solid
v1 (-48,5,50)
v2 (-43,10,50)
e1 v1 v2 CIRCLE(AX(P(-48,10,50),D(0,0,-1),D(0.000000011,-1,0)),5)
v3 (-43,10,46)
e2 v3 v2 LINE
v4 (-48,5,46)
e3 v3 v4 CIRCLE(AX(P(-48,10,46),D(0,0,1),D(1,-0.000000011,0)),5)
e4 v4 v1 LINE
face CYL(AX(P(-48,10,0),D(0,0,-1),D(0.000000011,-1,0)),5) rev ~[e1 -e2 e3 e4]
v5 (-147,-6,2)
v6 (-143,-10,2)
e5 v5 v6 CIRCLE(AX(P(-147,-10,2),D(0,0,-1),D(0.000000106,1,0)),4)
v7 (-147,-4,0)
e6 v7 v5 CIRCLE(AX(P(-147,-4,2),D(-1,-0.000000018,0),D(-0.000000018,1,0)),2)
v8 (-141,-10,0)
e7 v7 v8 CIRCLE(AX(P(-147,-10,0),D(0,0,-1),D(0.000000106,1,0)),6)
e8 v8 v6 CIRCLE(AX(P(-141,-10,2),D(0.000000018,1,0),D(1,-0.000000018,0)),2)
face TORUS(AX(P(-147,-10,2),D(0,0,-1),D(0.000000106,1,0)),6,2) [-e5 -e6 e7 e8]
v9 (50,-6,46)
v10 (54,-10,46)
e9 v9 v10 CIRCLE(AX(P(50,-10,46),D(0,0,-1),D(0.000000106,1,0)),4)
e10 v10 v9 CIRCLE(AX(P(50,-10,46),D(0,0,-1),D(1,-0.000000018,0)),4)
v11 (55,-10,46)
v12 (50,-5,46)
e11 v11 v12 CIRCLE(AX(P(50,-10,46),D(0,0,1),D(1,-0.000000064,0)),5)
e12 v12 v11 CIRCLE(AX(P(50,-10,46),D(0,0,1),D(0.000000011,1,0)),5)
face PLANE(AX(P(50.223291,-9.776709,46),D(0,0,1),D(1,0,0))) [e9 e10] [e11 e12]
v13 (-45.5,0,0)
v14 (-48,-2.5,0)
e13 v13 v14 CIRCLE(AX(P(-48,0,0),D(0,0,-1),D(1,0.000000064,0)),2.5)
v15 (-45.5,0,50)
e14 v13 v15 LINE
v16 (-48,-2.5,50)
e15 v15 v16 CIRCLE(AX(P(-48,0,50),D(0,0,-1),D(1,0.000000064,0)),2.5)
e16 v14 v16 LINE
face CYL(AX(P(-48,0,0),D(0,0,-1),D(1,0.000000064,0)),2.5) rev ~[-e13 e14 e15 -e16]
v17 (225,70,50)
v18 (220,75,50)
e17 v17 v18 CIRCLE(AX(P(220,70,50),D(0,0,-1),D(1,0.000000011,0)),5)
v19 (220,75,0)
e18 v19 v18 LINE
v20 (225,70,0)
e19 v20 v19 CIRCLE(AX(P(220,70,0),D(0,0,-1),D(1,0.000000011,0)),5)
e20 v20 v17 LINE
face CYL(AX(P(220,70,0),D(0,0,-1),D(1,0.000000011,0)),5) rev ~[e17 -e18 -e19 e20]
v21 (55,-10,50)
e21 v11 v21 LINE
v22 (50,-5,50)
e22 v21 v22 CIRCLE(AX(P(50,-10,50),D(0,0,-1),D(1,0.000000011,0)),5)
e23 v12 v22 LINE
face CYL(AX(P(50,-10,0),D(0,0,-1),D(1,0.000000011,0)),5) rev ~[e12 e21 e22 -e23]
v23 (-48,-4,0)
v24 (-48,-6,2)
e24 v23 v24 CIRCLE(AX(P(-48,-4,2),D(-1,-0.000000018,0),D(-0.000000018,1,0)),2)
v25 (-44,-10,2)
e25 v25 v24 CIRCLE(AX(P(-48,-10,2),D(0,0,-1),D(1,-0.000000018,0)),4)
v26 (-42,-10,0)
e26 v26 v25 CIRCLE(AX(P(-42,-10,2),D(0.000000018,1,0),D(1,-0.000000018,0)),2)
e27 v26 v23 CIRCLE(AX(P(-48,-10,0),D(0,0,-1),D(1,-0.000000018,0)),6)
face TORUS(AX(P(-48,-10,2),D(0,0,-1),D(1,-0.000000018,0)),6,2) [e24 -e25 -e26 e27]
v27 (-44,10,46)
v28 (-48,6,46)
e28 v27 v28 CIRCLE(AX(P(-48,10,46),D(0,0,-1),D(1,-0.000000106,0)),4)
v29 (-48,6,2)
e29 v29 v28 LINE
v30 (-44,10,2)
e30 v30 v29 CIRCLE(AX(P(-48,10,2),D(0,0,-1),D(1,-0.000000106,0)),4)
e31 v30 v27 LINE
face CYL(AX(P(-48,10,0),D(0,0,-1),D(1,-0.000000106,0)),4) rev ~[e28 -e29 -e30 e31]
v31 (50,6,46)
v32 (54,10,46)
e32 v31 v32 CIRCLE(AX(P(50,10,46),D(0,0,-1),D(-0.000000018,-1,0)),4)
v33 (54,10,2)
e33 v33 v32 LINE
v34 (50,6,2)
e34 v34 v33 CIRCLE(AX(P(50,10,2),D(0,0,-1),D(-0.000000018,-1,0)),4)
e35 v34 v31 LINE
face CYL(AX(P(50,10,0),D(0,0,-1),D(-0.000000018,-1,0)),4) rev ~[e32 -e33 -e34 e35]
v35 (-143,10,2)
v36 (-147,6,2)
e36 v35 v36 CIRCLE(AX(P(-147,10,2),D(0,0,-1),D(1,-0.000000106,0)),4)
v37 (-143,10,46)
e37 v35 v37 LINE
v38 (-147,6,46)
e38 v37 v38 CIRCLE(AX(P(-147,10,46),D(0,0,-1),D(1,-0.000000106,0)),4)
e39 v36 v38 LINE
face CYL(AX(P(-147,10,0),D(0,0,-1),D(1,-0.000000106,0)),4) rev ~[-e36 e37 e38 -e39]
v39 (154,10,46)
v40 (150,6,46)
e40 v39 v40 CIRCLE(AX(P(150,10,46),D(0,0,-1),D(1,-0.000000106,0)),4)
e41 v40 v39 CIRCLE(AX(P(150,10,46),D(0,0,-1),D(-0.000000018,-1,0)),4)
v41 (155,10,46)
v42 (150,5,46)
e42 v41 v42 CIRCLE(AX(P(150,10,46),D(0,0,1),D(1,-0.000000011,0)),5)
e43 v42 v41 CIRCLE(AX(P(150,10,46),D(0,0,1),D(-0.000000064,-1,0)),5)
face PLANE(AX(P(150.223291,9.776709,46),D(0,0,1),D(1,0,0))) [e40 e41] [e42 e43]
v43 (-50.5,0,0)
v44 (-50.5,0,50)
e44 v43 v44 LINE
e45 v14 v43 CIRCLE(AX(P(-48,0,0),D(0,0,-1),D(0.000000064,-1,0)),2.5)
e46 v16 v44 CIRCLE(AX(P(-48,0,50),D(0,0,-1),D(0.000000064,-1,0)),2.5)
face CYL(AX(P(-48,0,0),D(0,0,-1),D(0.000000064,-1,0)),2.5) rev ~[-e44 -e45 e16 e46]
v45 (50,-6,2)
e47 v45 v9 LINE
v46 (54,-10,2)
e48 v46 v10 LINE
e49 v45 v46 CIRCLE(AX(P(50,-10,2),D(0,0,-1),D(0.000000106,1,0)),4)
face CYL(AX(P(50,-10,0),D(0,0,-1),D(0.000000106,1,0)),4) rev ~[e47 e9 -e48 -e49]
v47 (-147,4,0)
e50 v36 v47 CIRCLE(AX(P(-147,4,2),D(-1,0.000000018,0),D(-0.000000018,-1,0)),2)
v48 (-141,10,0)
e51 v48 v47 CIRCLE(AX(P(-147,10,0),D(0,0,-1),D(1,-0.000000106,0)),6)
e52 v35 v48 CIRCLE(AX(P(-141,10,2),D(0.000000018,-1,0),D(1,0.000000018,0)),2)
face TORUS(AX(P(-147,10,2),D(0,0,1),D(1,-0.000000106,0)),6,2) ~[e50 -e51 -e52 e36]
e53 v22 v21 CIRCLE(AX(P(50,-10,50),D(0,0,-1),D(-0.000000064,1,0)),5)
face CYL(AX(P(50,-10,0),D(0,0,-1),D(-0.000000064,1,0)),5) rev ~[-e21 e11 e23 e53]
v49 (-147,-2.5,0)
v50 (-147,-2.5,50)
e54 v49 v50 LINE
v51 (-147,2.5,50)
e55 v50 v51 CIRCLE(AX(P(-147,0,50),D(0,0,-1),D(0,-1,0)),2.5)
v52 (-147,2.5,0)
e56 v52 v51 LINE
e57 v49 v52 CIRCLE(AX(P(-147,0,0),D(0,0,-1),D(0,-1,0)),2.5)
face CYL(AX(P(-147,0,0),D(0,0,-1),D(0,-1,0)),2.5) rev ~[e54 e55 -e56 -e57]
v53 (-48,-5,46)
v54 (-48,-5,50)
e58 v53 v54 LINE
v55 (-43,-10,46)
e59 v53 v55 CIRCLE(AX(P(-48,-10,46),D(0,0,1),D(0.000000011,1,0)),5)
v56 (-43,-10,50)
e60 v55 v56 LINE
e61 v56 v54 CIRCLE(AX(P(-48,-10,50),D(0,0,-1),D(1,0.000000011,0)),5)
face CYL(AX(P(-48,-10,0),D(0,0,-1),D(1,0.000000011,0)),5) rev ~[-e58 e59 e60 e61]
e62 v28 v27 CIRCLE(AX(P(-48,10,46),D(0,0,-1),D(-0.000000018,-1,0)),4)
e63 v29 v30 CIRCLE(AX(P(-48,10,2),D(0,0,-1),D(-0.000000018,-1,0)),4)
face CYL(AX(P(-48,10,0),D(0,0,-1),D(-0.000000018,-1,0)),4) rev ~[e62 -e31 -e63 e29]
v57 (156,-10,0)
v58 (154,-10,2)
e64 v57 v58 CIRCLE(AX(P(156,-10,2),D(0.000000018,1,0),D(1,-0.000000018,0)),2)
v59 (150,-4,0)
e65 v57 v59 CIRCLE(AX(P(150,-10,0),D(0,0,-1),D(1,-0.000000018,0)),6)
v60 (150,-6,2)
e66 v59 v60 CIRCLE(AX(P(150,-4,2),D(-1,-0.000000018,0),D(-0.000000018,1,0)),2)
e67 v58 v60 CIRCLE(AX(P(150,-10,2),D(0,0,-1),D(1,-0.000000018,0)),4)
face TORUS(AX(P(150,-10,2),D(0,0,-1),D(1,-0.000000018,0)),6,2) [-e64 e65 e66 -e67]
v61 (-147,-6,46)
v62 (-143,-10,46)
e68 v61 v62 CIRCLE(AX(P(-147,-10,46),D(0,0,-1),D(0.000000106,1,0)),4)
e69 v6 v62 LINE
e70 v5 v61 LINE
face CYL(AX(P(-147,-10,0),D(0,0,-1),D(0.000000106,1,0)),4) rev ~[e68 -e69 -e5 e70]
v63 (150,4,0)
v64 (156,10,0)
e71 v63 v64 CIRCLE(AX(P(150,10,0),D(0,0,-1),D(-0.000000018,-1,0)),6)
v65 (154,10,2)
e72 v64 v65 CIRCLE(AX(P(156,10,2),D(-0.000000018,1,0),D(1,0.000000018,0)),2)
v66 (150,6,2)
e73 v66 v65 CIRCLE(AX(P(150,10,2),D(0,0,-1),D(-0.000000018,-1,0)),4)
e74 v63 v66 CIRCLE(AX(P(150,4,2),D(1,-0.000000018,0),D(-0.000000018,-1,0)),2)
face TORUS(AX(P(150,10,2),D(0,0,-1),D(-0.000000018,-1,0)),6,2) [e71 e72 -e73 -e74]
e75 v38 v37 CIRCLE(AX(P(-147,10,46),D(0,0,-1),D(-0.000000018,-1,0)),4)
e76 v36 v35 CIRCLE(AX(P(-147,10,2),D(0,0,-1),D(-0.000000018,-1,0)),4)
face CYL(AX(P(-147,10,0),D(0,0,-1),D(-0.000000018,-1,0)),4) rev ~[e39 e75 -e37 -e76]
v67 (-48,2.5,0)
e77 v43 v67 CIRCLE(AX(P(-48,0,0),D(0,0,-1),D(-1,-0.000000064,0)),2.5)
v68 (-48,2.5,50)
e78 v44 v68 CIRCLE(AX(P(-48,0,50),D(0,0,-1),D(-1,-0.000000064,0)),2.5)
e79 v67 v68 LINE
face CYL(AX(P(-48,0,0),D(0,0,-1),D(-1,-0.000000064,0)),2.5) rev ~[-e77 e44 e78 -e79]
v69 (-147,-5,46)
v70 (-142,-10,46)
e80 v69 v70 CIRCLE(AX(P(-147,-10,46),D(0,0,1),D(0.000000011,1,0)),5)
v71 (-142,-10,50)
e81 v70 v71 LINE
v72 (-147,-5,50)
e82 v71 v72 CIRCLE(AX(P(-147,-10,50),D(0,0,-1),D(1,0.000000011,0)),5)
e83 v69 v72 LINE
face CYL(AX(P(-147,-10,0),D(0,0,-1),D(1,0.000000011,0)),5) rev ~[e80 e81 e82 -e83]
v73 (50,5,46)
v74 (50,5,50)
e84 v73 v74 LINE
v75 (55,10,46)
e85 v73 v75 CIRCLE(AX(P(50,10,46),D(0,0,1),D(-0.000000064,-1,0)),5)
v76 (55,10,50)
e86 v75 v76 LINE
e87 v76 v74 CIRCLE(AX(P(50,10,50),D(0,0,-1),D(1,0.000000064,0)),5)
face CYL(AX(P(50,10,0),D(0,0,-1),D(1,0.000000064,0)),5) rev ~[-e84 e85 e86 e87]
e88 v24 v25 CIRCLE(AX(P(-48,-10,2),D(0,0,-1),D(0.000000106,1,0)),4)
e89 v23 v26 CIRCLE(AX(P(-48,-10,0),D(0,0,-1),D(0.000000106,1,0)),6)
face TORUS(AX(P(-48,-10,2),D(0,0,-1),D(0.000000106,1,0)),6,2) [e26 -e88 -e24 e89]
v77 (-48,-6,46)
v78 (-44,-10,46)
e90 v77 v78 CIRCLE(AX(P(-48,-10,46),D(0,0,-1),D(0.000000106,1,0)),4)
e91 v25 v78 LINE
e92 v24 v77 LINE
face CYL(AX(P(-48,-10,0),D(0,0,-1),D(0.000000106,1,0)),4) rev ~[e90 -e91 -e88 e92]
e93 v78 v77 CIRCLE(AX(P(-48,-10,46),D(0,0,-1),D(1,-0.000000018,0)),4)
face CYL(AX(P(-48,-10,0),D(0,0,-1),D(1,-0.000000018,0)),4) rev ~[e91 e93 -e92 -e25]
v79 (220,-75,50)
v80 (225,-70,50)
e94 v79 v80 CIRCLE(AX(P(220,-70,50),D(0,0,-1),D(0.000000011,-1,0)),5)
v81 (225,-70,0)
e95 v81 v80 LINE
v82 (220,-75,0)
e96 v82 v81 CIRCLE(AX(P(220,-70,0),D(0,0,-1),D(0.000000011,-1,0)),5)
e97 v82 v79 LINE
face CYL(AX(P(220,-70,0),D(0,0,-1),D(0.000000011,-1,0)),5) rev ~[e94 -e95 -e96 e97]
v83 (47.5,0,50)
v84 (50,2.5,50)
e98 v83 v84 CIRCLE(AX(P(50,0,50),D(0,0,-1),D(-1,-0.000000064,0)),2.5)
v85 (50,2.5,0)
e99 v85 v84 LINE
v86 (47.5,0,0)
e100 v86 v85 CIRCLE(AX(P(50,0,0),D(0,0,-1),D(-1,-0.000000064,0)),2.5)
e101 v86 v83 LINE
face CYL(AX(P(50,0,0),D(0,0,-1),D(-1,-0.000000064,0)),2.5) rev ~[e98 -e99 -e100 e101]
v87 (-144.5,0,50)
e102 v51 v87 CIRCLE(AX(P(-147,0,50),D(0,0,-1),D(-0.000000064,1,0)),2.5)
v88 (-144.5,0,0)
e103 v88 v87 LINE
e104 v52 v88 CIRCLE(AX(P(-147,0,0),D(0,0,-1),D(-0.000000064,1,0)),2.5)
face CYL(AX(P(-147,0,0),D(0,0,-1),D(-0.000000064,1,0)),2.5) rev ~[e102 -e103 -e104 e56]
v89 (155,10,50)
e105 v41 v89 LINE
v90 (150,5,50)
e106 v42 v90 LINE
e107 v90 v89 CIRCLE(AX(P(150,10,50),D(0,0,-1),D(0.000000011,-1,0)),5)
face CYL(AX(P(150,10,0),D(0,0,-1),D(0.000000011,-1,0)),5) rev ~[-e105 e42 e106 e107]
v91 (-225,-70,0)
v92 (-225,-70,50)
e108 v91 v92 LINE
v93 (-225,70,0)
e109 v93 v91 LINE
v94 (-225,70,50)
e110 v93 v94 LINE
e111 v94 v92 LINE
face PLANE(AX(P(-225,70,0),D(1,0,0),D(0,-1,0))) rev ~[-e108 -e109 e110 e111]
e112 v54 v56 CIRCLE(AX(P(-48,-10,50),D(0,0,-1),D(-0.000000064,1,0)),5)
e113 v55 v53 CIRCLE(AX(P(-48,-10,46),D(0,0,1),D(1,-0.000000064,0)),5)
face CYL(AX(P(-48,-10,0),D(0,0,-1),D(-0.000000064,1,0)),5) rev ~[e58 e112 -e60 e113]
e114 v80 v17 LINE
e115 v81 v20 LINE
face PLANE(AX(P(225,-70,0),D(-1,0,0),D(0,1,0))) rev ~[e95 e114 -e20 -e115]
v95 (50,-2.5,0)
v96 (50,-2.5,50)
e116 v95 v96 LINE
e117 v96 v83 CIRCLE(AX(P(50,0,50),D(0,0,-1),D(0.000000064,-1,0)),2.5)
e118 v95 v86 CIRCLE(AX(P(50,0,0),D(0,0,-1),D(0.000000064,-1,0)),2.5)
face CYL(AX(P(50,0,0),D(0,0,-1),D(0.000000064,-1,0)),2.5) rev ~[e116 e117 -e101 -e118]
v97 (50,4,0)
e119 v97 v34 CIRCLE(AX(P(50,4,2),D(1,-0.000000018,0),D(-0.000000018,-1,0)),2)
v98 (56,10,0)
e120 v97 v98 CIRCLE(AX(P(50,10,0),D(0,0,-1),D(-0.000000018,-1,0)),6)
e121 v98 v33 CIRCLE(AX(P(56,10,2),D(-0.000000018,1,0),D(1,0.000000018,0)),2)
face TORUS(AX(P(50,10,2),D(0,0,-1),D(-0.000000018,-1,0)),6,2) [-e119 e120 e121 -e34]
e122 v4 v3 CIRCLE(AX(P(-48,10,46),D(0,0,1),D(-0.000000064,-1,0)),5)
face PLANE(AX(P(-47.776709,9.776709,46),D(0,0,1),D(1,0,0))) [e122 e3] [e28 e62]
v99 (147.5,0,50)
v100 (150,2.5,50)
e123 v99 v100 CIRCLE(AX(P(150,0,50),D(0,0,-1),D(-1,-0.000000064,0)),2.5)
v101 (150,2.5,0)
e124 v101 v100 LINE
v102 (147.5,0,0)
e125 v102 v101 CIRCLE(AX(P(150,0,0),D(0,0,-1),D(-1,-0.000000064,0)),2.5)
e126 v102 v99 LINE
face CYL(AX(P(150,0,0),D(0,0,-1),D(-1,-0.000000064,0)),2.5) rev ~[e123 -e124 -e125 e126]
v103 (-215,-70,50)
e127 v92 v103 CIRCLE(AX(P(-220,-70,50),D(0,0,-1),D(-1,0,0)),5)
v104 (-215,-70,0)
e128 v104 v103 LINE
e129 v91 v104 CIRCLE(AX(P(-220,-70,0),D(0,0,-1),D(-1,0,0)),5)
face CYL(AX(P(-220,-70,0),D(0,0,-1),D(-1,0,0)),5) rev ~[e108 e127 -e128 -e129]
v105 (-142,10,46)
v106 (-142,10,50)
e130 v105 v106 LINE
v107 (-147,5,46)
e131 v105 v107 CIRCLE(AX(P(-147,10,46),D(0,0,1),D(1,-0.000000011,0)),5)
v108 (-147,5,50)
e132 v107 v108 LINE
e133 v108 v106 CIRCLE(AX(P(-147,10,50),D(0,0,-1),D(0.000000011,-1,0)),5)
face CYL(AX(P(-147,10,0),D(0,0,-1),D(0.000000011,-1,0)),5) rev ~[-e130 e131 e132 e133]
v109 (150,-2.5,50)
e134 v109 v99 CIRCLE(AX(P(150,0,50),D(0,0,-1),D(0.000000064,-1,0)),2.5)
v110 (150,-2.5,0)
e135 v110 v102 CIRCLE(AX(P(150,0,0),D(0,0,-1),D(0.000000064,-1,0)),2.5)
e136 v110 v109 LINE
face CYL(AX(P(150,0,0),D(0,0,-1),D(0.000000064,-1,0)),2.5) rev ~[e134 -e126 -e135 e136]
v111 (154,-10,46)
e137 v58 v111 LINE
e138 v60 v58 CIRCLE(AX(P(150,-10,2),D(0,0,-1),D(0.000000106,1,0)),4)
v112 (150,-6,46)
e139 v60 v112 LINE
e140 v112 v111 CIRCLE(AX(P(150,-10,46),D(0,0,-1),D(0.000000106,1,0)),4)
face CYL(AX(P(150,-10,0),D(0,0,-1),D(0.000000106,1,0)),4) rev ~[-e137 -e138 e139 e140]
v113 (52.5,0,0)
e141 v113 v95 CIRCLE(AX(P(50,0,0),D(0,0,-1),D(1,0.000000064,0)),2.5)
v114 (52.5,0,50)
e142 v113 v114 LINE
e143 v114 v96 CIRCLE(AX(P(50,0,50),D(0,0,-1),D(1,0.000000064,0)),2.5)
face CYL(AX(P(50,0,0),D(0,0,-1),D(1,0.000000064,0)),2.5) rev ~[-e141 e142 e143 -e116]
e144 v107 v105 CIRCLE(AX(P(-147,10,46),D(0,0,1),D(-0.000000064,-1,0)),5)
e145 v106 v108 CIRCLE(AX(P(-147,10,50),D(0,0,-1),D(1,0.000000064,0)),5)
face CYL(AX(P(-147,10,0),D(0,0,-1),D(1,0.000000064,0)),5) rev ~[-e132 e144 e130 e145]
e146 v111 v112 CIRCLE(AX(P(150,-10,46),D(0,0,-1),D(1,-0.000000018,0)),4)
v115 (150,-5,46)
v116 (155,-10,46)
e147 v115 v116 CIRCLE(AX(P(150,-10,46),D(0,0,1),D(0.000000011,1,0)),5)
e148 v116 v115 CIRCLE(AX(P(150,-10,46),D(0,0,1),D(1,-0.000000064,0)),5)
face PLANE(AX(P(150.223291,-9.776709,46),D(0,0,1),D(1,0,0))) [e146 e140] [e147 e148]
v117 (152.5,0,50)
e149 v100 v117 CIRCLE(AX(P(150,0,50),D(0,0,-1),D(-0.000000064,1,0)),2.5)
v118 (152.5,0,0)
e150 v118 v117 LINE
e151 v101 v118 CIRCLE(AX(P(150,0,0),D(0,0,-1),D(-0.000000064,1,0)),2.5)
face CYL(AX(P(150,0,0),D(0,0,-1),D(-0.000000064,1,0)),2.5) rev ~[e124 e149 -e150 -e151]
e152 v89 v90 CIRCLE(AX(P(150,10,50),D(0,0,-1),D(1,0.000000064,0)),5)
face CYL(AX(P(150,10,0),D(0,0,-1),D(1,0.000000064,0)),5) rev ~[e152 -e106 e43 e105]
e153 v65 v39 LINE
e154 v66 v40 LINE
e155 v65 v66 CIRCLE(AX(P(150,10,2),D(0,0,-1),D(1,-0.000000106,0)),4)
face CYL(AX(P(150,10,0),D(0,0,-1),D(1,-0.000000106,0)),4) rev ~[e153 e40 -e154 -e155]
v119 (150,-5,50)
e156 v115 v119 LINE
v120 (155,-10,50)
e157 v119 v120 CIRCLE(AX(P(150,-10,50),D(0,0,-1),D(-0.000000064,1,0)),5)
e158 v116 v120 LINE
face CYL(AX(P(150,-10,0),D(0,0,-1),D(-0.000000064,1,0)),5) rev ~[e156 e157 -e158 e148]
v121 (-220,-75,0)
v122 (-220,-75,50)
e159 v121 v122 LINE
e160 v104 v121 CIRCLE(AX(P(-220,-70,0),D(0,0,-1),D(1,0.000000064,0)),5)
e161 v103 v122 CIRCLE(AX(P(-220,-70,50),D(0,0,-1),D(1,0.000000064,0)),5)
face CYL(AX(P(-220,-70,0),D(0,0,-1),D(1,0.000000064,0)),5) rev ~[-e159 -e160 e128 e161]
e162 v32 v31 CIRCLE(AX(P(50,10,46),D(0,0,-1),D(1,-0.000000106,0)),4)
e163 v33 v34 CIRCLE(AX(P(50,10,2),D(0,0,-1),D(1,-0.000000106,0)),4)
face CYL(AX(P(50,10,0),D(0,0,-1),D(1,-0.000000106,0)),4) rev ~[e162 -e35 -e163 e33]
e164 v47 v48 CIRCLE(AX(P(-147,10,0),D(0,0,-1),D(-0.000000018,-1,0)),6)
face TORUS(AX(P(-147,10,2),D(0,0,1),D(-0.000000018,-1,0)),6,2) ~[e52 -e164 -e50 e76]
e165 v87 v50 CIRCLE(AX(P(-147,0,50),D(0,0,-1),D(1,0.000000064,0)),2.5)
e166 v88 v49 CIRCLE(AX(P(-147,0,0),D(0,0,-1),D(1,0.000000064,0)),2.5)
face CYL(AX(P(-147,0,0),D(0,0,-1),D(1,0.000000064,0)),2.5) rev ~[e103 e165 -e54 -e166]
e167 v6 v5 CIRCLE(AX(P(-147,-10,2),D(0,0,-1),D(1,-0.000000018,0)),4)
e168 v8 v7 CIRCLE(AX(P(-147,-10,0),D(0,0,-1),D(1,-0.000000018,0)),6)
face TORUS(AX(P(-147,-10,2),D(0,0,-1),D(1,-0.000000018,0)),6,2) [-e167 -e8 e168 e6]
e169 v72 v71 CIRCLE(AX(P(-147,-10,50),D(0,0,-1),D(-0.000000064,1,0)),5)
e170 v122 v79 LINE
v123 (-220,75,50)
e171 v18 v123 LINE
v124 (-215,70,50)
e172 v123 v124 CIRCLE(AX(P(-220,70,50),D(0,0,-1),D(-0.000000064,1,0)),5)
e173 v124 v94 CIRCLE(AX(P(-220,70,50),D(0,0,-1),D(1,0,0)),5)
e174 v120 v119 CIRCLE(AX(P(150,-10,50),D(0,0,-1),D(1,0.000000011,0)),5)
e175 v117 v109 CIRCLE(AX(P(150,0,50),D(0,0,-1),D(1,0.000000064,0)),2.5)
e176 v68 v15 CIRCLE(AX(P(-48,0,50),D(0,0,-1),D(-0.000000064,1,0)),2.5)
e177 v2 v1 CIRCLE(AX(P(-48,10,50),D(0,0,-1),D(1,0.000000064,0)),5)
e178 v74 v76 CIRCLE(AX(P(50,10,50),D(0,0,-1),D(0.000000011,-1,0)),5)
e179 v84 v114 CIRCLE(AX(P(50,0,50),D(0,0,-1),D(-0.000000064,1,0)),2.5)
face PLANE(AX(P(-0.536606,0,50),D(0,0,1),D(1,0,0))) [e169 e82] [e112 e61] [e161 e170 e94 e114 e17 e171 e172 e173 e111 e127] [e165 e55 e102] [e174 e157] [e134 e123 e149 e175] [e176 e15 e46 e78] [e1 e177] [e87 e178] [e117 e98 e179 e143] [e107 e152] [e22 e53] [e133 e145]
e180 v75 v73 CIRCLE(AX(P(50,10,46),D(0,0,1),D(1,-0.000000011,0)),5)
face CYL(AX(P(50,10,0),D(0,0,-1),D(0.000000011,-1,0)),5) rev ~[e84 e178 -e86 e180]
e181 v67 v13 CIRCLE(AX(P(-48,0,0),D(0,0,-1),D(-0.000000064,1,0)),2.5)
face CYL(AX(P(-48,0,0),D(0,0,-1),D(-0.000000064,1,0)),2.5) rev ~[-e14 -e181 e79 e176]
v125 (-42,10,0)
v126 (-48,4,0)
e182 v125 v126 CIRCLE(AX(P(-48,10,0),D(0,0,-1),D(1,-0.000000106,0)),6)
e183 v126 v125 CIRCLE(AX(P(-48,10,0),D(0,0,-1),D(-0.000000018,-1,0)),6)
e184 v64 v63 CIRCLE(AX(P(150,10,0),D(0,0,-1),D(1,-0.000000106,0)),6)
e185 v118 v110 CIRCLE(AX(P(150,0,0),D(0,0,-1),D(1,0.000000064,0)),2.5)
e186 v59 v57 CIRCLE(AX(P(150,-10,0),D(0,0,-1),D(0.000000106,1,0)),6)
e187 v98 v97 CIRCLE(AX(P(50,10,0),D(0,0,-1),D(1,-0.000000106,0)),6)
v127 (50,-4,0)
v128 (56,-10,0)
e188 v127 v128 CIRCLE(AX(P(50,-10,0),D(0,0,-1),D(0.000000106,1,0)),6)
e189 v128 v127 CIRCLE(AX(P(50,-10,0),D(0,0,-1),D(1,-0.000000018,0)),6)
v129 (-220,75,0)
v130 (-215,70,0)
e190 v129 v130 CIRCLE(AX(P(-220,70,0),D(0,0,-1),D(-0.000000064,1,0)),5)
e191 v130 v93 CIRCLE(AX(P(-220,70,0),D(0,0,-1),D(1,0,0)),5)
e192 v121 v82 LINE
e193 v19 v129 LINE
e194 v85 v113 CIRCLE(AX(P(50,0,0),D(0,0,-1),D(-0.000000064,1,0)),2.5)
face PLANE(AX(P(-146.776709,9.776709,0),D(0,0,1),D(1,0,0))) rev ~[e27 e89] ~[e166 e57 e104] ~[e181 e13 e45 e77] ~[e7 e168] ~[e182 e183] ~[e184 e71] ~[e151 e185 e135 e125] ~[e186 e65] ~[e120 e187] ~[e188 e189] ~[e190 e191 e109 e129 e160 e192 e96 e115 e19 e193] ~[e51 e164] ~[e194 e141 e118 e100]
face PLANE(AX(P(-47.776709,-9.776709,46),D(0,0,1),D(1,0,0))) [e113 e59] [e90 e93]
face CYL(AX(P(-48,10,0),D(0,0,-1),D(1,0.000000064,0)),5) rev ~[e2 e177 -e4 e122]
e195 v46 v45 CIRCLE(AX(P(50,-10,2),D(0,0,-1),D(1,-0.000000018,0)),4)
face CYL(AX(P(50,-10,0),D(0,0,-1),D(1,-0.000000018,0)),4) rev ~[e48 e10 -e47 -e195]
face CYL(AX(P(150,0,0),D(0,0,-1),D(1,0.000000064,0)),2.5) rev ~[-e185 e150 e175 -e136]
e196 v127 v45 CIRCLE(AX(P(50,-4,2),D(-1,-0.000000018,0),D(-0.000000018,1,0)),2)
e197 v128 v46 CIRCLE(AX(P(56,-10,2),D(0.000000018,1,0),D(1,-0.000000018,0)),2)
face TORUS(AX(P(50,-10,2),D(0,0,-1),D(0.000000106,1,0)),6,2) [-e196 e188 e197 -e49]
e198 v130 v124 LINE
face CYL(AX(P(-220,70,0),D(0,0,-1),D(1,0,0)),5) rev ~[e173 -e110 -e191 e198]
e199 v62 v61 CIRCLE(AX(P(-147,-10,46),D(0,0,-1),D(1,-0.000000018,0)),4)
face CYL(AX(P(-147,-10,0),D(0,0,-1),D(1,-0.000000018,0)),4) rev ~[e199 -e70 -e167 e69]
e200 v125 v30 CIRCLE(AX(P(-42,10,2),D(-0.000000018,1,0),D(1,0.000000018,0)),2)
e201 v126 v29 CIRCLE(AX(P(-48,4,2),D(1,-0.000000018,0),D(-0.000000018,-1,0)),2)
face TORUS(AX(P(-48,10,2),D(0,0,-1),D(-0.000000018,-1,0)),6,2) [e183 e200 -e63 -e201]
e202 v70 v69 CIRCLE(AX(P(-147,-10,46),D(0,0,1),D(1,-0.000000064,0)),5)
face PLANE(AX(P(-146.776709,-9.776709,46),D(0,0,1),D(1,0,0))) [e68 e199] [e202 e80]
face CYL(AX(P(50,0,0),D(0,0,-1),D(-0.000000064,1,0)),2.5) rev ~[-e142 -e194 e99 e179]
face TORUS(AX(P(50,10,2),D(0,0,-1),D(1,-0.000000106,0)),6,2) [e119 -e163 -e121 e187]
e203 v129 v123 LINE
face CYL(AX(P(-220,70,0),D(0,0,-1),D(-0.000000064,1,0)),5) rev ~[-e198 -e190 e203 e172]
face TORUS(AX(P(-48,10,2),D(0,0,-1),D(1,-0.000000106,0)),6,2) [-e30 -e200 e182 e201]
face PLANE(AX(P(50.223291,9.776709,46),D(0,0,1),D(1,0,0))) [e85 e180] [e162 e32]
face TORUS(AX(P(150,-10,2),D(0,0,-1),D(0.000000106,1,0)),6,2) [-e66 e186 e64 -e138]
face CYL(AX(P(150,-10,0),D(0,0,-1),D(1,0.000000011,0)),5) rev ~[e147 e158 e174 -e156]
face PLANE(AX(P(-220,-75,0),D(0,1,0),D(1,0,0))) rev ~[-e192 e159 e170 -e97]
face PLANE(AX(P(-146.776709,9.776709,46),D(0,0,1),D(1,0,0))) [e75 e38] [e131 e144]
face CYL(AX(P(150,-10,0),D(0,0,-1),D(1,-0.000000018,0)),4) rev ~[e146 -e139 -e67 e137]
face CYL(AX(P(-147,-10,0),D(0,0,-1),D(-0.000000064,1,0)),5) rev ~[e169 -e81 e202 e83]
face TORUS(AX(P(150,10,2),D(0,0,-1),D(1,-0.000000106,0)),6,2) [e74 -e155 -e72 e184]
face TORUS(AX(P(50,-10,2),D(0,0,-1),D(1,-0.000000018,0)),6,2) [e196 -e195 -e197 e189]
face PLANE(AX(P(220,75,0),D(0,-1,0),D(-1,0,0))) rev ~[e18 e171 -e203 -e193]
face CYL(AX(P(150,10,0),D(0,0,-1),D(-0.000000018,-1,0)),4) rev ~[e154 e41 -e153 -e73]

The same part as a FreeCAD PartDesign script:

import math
import FreeCAD as App
import Part
import Sketcher

V = App.Vector


def edges_at(feature, points):
    """Names of the edges that pass closest to the given points."""
    edges = feature.Shape.Edges
    near = lambda p: min(range(len(edges)), key=lambda i: edges[i].distToShape(Part.Vertex(*p))[0])
    return sorted({f"Edge{near(p) + 1}" for p in points})

doc = App.newDocument("Part")
body = doc.addObject("PartDesign::Body", "Body")

sketch1 = body.newObject("Sketcher::SketchObject", "Sketch")
sketch1.AttachmentSupport = (doc.getObject("XY_Plane"), [""])
sketch1.MapMode = "FlatFace"
sketch1.addGeometry([
    Part.LineSegment(V(220, 75, 0), V(-220, 75, 0)),
    Part.ArcOfCircle(Part.Circle(V(-220, 70, 0), V(0, 0, 1), 5), math.radians(0), math.radians(90)),
    Part.ArcOfCircle(Part.Circle(V(-220, 70, 0), V(0, 0, 1), 5), math.radians(180), math.radians(360)),
    Part.LineSegment(V(-225, 70, 0), V(-225, -70, 0)),
    Part.ArcOfCircle(Part.Circle(V(-220, -70, 0), V(0, 0, 1), 5), math.radians(0), math.radians(180)),
    Part.ArcOfCircle(Part.Circle(V(-220, -70, 0), V(0, 0, 1), 5), math.radians(-90), math.radians(0)),
    Part.LineSegment(V(-220, -75, 0), V(220, -75, 0)),
    Part.ArcOfCircle(Part.Circle(V(220, -70, 0), V(0, 0, 1), 5), math.radians(0), math.radians(270)),
    Part.LineSegment(V(225, -70, 0), V(225, 70, 0)),
    Part.ArcOfCircle(Part.Circle(V(220, 70, 0), V(0, 0, 1), 5), math.radians(90), math.radians(360)),
    Part.ArcOfCircle(Part.Circle(V(-147, -10, 0), V(0, 0, 1), 5), math.radians(0), math.radians(90)),
    Part.ArcOfCircle(Part.Circle(V(-147, -10, 0), V(0, 0, 1), 5), math.radians(90), math.radians(360)),
    Part.ArcOfCircle(Part.Circle(V(-48, -10, 0), V(0, 0, 1), 5), math.radians(0), math.radians(90)),
    Part.ArcOfCircle(Part.Circle(V(-48, -10, 0), V(0, 0, 1), 5), math.radians(90), math.radians(360)),
    Part.ArcOfCircle(Part.Circle(V(-147, 0, 0), V(0, 0, 1), 2.5), math.radians(90), math.radians(270)),
    Part.ArcOfCircle(Part.Circle(V(-147, 0, 0), V(0, 0, 1), 2.5), math.radians(0), math.radians(90)),
    Part.ArcOfCircle(Part.Circle(V(-147, 0, 0), V(0, 0, 1), 2.5), math.radians(-90), math.radians(0)),
    Part.ArcOfCircle(Part.Circle(V(-48, 0, 0), V(0, 0, 1), 2.5), math.radians(0), math.radians(90)),
    Part.ArcOfCircle(Part.Circle(V(-48, 0, 0), V(0, 0, 1), 2.5), math.radians(-90), math.radians(0)),
    Part.ArcOfCircle(Part.Circle(V(-48, 0, 0), V(0, 0, 1), 2.5), math.radians(180), math.radians(270)),
    Part.ArcOfCircle(Part.Circle(V(-48, 0, 0), V(0, 0, 1), 2.5), math.radians(90), math.radians(180)),
    Part.ArcOfCircle(Part.Circle(V(50, -10, 0), V(0, 0, 1), 5), math.radians(0), math.radians(90)),
    Part.ArcOfCircle(Part.Circle(V(50, -10, 0), V(0, 0, 1), 5), math.radians(90), math.radians(360)),
    Part.ArcOfCircle(Part.Circle(V(150, -10, 0), V(0, 0, 1), 5), math.radians(0), math.radians(90)),
    Part.ArcOfCircle(Part.Circle(V(150, -10, 0), V(0, 0, 1), 5), math.radians(90), math.radians(360)),
    Part.ArcOfCircle(Part.Circle(V(50, 0, 0), V(0, 0, 1), 2.5), math.radians(0), math.radians(90)),
    Part.ArcOfCircle(Part.Circle(V(50, 0, 0), V(0, 0, 1), 2.5), math.radians(-90), math.radians(0)),
    Part.ArcOfCircle(Part.Circle(V(50, 0, 0), V(0, 0, 1), 2.5), math.radians(180), math.radians(270)),
    Part.ArcOfCircle(Part.Circle(V(50, 0, 0), V(0, 0, 1), 2.5), math.radians(90), math.radians(180)),
    Part.ArcOfCircle(Part.Circle(V(150, 0, 0), V(0, 0, 1), 2.5), math.radians(-90), math.radians(0)),
    Part.ArcOfCircle(Part.Circle(V(150, 0, 0), V(0, 0, 1), 2.5), math.radians(180), math.radians(270)),
    Part.ArcOfCircle(Part.Circle(V(150, 0, 0), V(0, 0, 1), 2.5), math.radians(90), math.radians(180)),
    Part.ArcOfCircle(Part.Circle(V(150, 0, 0), V(0, 0, 1), 2.5), math.radians(0), math.radians(90)),
    Part.ArcOfCircle(Part.Circle(V(-147, 10, 0), V(0, 0, 1), 5), math.radians(0), math.radians(270)),
    Part.ArcOfCircle(Part.Circle(V(-147, 10, 0), V(0, 0, 1), 5), math.radians(-90), math.radians(0)),
    Part.ArcOfCircle(Part.Circle(V(-48, 10, 0), V(0, 0, 1), 5), math.radians(0), math.radians(270)),
    Part.ArcOfCircle(Part.Circle(V(-48, 10, 0), V(0, 0, 1), 5), math.radians(-90), math.radians(0)),
    Part.ArcOfCircle(Part.Circle(V(50, 10, 0), V(0, 0, 1), 5), math.radians(0), math.radians(270)),
    Part.ArcOfCircle(Part.Circle(V(50, 10, 0), V(0, 0, 1), 5), math.radians(-90), math.radians(0)),
    Part.ArcOfCircle(Part.Circle(V(150, 10, 0), V(0, 0, 1), 5), math.radians(0), math.radians(270)),
    Part.ArcOfCircle(Part.Circle(V(150, 10, 0), V(0, 0, 1), 5), math.radians(-90), math.radians(0)),
], False)
sketch1.addConstraint([
    Sketcher.Constraint("Tangent", 0, 2, 1, 2),
    Sketcher.Constraint("Tangent", 1, 1, 2, 2),
    Sketcher.Constraint("Tangent", 2, 1, 3, 1),
    Sketcher.Constraint("Tangent", 3, 2, 4, 2),
    Sketcher.Constraint("Tangent", 4, 1, 5, 2),
    Sketcher.Constraint("Tangent", 5, 1, 6, 1),
    Sketcher.Constraint("Tangent", 6, 2, 7, 2),
    Sketcher.Constraint("Tangent", 7, 1, 8, 1),
    Sketcher.Constraint("Tangent", 8, 2, 9, 2),
    Sketcher.Constraint("Tangent", 9, 1, 0, 1),
    Sketcher.Constraint("Tangent", 10, 1, 11, 2),
    Sketcher.Constraint("Coincident", 11, 1, 10, 2),
    Sketcher.Constraint("Tangent", 12, 1, 13, 2),
    Sketcher.Constraint("Coincident", 13, 1, 12, 2),
    Sketcher.Constraint("Tangent", 14, 1, 15, 2),
    Sketcher.Constraint("Tangent", 15, 1, 16, 2),
    Sketcher.Constraint("Tangent", 16, 1, 14, 2),
    Sketcher.Constraint("Tangent", 17, 1, 18, 2),
    Sketcher.Constraint("Tangent", 18, 1, 19, 2),
    Sketcher.Constraint("Tangent", 19, 1, 20, 2),
    Sketcher.Constraint("Tangent", 20, 1, 17, 2),
    Sketcher.Constraint("Tangent", 21, 1, 22, 2),
    Sketcher.Constraint("Coincident", 22, 1, 21, 2),
    Sketcher.Constraint("Tangent", 23, 1, 24, 2),
    Sketcher.Constraint("Coincident", 24, 1, 23, 2),
    Sketcher.Constraint("Tangent", 25, 1, 26, 2),
    Sketcher.Constraint("Tangent", 26, 1, 27, 2),
    Sketcher.Constraint("Tangent", 27, 1, 28, 2),
    Sketcher.Constraint("Tangent", 28, 1, 25, 2),
    Sketcher.Constraint("Tangent", 29, 1, 30, 2),
    Sketcher.Constraint("Tangent", 30, 1, 31, 2),
    Sketcher.Constraint("Tangent", 31, 1, 32, 2),
    Sketcher.Constraint("Tangent", 32, 1, 29, 2),
    Sketcher.Constraint("Tangent", 33, 1, 34, 2),
    Sketcher.Constraint("Coincident", 34, 1, 33, 2),
    Sketcher.Constraint("Tangent", 35, 1, 36, 2),
    Sketcher.Constraint("Coincident", 36, 1, 35, 2),
    Sketcher.Constraint("Tangent", 37, 1, 38, 2),
    Sketcher.Constraint("Coincident", 38, 1, 37, 2),
    Sketcher.Constraint("Tangent", 39, 1, 40, 2),
    Sketcher.Constraint("Coincident", 40, 1, 39, 2),
    Sketcher.Constraint("Horizontal", 0),
    Sketcher.Constraint("Vertical", 3),
    Sketcher.Constraint("Horizontal", 6),
    Sketcher.Constraint("Vertical", 8),
    Sketcher.Constraint("Equal", 1, 2),
    Sketcher.Constraint("Equal", 2, 4),
    Sketcher.Constraint("Equal", 4, 5),
    Sketcher.Constraint("Equal", 5, 7),
    Sketcher.Constraint("Equal", 7, 9),
    Sketcher.Constraint("Equal", 9, 10),
    Sketcher.Constraint("Equal", 11, 12),
    Sketcher.Constraint("Equal", 16, 17),
    Sketcher.Constraint("Equal", 17, 18),
    Sketcher.Constraint("Equal", 13, 21),
    Sketcher.Constraint("Equal", 22, 23),
    Sketcher.Constraint("Equal", 20, 25),
    Sketcher.Constraint("Equal", 25, 26),
    Sketcher.Constraint("Equal", 28, 29),
    Sketcher.Constraint("Equal", 29, 30),
    Sketcher.Constraint("Equal", 24, 33),
    Sketcher.Constraint("Equal", 34, 35),
    Sketcher.Constraint("Equal", 36, 37),
    Sketcher.Constraint("Equal", 38, 39),
    Sketcher.Constraint("Symmetric", 1, 3, 7, 3, -1, 1),
    Sketcher.Constraint("Symmetric", 10, 3, 33, 3, -1),
    Sketcher.Constraint("Symmetric", 12, 3, 35, 3, -1),
    Sketcher.Constraint("Symmetric", 21, 3, 37, 3, -1),
    Sketcher.Constraint("Symmetric", 23, 3, 39, 3, -1),
    Sketcher.Constraint("Symmetric", 14, 1, 16, 1, -1),
    Sketcher.Constraint("Symmetric", 18, 1, 20, 1, -1),
    Sketcher.Constraint("Symmetric", 26, 1, 28, 1, -1),
    Sketcher.Constraint("Symmetric", 29, 1, 31, 1, -1),
    Sketcher.Constraint("PointOnObject", 15, 1, -1),
    Sketcher.Constraint("PointOnObject", 17, 1, -1),
    Sketcher.Constraint("PointOnObject", 19, 1, -1),
    Sketcher.Constraint("PointOnObject", 25, 1, -1),
    Sketcher.Constraint("PointOnObject", 27, 1, -1),
    Sketcher.Constraint("PointOnObject", 30, 1, -1),
    Sketcher.Constraint("PointOnObject", 32, 1, -1),
    Sketcher.Constraint("Horizontal", 11, 3, 12, 3),
    Sketcher.Constraint("Horizontal", 13, 3, 21, 3),
    Sketcher.Constraint("Horizontal", 22, 3, 23, 3),
    Sketcher.Constraint("Horizontal", 9, 3, 1, 1),
    Sketcher.Constraint("Horizontal", 3, 2, 4, 1),
    Sketcher.Constraint("Horizontal", 24, 3, 10, 1),
    Sketcher.Constraint("Horizontal", 10, 1, 12, 1),
    Sketcher.Constraint("Horizontal", 12, 1, 21, 1),
    Sketcher.Constraint("Horizontal", 21, 1, 23, 1),
    Sketcher.Constraint("Horizontal", 40, 3, 33, 1),
    Sketcher.Constraint("Horizontal", 33, 1, 35, 1),
    Sketcher.Constraint("Horizontal", 35, 1, 37, 1),
    Sketcher.Constraint("Horizontal", 37, 1, 39, 1),
    Sketcher.Constraint("Vertical", 11, 3, 14, 3),
    Sketcher.Constraint("Vertical", 13, 3, 17, 3),
    Sketcher.Constraint("Vertical", 22, 3, 25, 3),
    Sketcher.Constraint("Vertical", 24, 3, 29, 3),
    Sketcher.Constraint("Vertical", 34, 3, 11, 1),
    Sketcher.Constraint("Vertical", 36, 3, 13, 1),
    Sketcher.Constraint("Vertical", 11, 1, 14, 1),
    Sketcher.Constraint("Vertical", 13, 1, 18, 1),
    Sketcher.Constraint("Vertical", 38, 3, 22, 1),
    Sketcher.Constraint("Vertical", 40, 3, 24, 1),
    Sketcher.Constraint("Vertical", 22, 1, 26, 1),
    Sketcher.Constraint("Vertical", 24, 1, 29, 1),
    Sketcher.Constraint("Vertical", 16, 1, 34, 1),
    Sketcher.Constraint("Vertical", 20, 1, 36, 1),
    Sketcher.Constraint("Vertical", 28, 1, 38, 1),
    Sketcher.Constraint("Vertical", 31, 1, 40, 1),
    Sketcher.Constraint("Radius", 1, 5.0),
    Sketcher.Constraint("Radius", 14, 2.5),
    Sketcher.Constraint("DistanceX", 0, 2, 0, 1, 440.0),
    Sketcher.Constraint("DistanceY", 3, 2, 3, 1, 140.0),
    Sketcher.Constraint("DistanceX", 10, 3, -1, 1, 147.0),
    Sketcher.Constraint("DistanceY", 10, 3, -1, 1, 10.0),
    Sketcher.Constraint("DistanceX", 12, 3, -1, 1, 48.0),
    Sketcher.Constraint("DistanceX", -1, 1, 21, 3, 50.0),
    Sketcher.Constraint("DistanceX", -1, 1, 23, 3, 150.0),
])
pad1 = body.newObject("PartDesign::Pad", "Pad")
pad1.Profile = sketch1
pad1.Length = 50

sketch2 = body.newObject("Sketcher::SketchObject", "Sketch001")
sketch2.AttachmentSupport = (doc.getObject("XY_Plane"), [""])
sketch2.MapMode = "FlatFace"
sketch2.addGeometry([
    Part.ArcOfCircle(Part.Circle(V(-147, 10, 0), V(0, 0, 1), 5), math.radians(0), math.radians(270)),
    Part.ArcOfCircle(Part.Circle(V(-147, 10, 0), V(0, 0, 1), 5), math.radians(-90), math.radians(0)),
    Part.ArcOfCircle(Part.Circle(V(-147, 10, 0), V(0, 0, 1), 4), math.radians(0), math.radians(270)),
    Part.ArcOfCircle(Part.Circle(V(-147, 10, 0), V(0, 0, 1), 4), math.radians(-90), math.radians(0)),
    Part.ArcOfCircle(Part.Circle(V(-147, -10, 0), V(0, 0, 1), 5), math.radians(0), math.radians(90)),
    Part.ArcOfCircle(Part.Circle(V(-147, -10, 0), V(0, 0, 1), 5), math.radians(90), math.radians(360)),
    Part.ArcOfCircle(Part.Circle(V(-147, -10, 0), V(0, 0, 1), 4), math.radians(0), math.radians(90)),
    Part.ArcOfCircle(Part.Circle(V(-147, -10, 0), V(0, 0, 1), 4), math.radians(90), math.radians(360)),
    Part.ArcOfCircle(Part.Circle(V(-48, 10, 0), V(0, 0, 1), 5), math.radians(0), math.radians(270)),
    Part.ArcOfCircle(Part.Circle(V(-48, 10, 0), V(0, 0, 1), 5), math.radians(-90), math.radians(0)),
    Part.ArcOfCircle(Part.Circle(V(-48, 10, 0), V(0, 0, 1), 4), math.radians(0), math.radians(270)),
    Part.ArcOfCircle(Part.Circle(V(-48, 10, 0), V(0, 0, 1), 4), math.radians(-90), math.radians(0)),
    Part.ArcOfCircle(Part.Circle(V(-48, -10, 0), V(0, 0, 1), 5), math.radians(0), math.radians(90)),
    Part.ArcOfCircle(Part.Circle(V(-48, -10, 0), V(0, 0, 1), 5), math.radians(90), math.radians(360)),
    Part.ArcOfCircle(Part.Circle(V(-48, -10, 0), V(0, 0, 1), 4), math.radians(0), math.radians(90)),
    Part.ArcOfCircle(Part.Circle(V(-48, -10, 0), V(0, 0, 1), 4), math.radians(90), math.radians(360)),
    Part.ArcOfCircle(Part.Circle(V(50, -10, 0), V(0, 0, 1), 5), math.radians(0), math.radians(90)),
    Part.ArcOfCircle(Part.Circle(V(50, -10, 0), V(0, 0, 1), 5), math.radians(90), math.radians(360)),
    Part.ArcOfCircle(Part.Circle(V(50, -10, 0), V(0, 0, 1), 4), math.radians(0), math.radians(90)),
    Part.ArcOfCircle(Part.Circle(V(50, -10, 0), V(0, 0, 1), 4), math.radians(90), math.radians(360)),
    Part.ArcOfCircle(Part.Circle(V(50, 10, 0), V(0, 0, 1), 5), math.radians(0), math.radians(270)),
    Part.ArcOfCircle(Part.Circle(V(50, 10, 0), V(0, 0, 1), 5), math.radians(-90), math.radians(0)),
    Part.ArcOfCircle(Part.Circle(V(50, 10, 0), V(0, 0, 1), 4), math.radians(0), math.radians(270)),
    Part.ArcOfCircle(Part.Circle(V(50, 10, 0), V(0, 0, 1), 4), math.radians(-90), math.radians(0)),
    Part.ArcOfCircle(Part.Circle(V(150, 10, 0), V(0, 0, 1), 5), math.radians(0), math.radians(270)),
    Part.ArcOfCircle(Part.Circle(V(150, 10, 0), V(0, 0, 1), 5), math.radians(-90), math.radians(0)),
    Part.ArcOfCircle(Part.Circle(V(150, 10, 0), V(0, 0, 1), 4), math.radians(0), math.radians(270)),
    Part.ArcOfCircle(Part.Circle(V(150, 10, 0), V(0, 0, 1), 4), math.radians(-90), math.radians(0)),
    Part.ArcOfCircle(Part.Circle(V(150, -10, 0), V(0, 0, 1), 5), math.radians(0), math.radians(90)),
    Part.ArcOfCircle(Part.Circle(V(150, -10, 0), V(0, 0, 1), 5), math.radians(90), math.radians(360)),
    Part.ArcOfCircle(Part.Circle(V(150, -10, 0), V(0, 0, 1), 4), math.radians(0), math.radians(90)),
    Part.ArcOfCircle(Part.Circle(V(150, -10, 0), V(0, 0, 1), 4), math.radians(90), math.radians(360)),
], False)
sketch2.addConstraint([
    Sketcher.Constraint("Tangent", 0, 1, 1, 2),
    Sketcher.Constraint("Coincident", 1, 1, 0, 2),
    Sketcher.Constraint("Tangent", 2, 1, 3, 2),
    Sketcher.Constraint("Coincident", 3, 1, 2, 2),
    Sketcher.Constraint("Tangent", 4, 1, 5, 2),
    Sketcher.Constraint("Coincident", 5, 1, 4, 2),
    Sketcher.Constraint("Tangent", 6, 1, 7, 2),
    Sketcher.Constraint("Coincident", 7, 1, 6, 2),
    Sketcher.Constraint("Tangent", 8, 1, 9, 2),
    Sketcher.Constraint("Coincident", 9, 1, 8, 2),
    Sketcher.Constraint("Tangent", 10, 1, 11, 2),
    Sketcher.Constraint("Coincident", 11, 1, 10, 2),
    Sketcher.Constraint("Tangent", 12, 1, 13, 2),
    Sketcher.Constraint("Coincident", 13, 1, 12, 2),
    Sketcher.Constraint("Tangent", 14, 1, 15, 2),
    Sketcher.Constraint("Coincident", 15, 1, 14, 2),
    Sketcher.Constraint("Tangent", 16, 1, 17, 2),
    Sketcher.Constraint("Coincident", 17, 1, 16, 2),
    Sketcher.Constraint("Tangent", 18, 1, 19, 2),
    Sketcher.Constraint("Coincident", 19, 1, 18, 2),
    Sketcher.Constraint("Tangent", 20, 1, 21, 2),
    Sketcher.Constraint("Coincident", 21, 1, 20, 2),
    Sketcher.Constraint("Tangent", 22, 1, 23, 2),
    Sketcher.Constraint("Coincident", 23, 1, 22, 2),
    Sketcher.Constraint("Tangent", 24, 1, 25, 2),
    Sketcher.Constraint("Coincident", 25, 1, 24, 2),
    Sketcher.Constraint("Tangent", 26, 1, 27, 2),
    Sketcher.Constraint("Coincident", 27, 1, 26, 2),
    Sketcher.Constraint("Tangent", 28, 1, 29, 2),
    Sketcher.Constraint("Coincident", 29, 1, 28, 2),
    Sketcher.Constraint("Tangent", 30, 1, 31, 2),
    Sketcher.Constraint("Coincident", 31, 1, 30, 2),
    Sketcher.Constraint("Coincident", 2, 3, 0, 3),
    Sketcher.Constraint("Coincident", 6, 3, 4, 3),
    Sketcher.Constraint("Coincident", 10, 3, 8, 3),
    Sketcher.Constraint("Coincident", 14, 3, 12, 3),
    Sketcher.Constraint("Coincident", 18, 3, 16, 3),
    Sketcher.Constraint("Coincident", 22, 3, 20, 3),
    Sketcher.Constraint("Coincident", 26, 3, 24, 3),
    Sketcher.Constraint("Coincident", 30, 3, 28, 3),
    Sketcher.Constraint("Equal", 1, 4),
    Sketcher.Constraint("Equal", 3, 6),
    Sketcher.Constraint("Equal", 5, 8),
    Sketcher.Constraint("Equal", 7, 10),
    Sketcher.Constraint("Equal", 9, 12),
    Sketcher.Constraint("Equal", 11, 14),
    Sketcher.Constraint("Equal", 13, 16),
    Sketcher.Constraint("Equal", 15, 18),
    Sketcher.Constraint("Equal", 17, 20),
    Sketcher.Constraint("Equal", 19, 22),
    Sketcher.Constraint("Equal", 21, 24),
    Sketcher.Constraint("Equal", 23, 26),
    Sketcher.Constraint("Equal", 25, 28),
    Sketcher.Constraint("Equal", 27, 30),
    Sketcher.Constraint("Symmetric", 0, 3, 4, 3, -1),
    Sketcher.Constraint("Symmetric", 8, 3, 12, 3, -1),
    Sketcher.Constraint("Symmetric", 16, 3, 20, 3, -1),
    Sketcher.Constraint("Symmetric", 24, 3, 28, 3, -1),
    Sketcher.Constraint("Horizontal", 3, 3, 8, 3),
    Sketcher.Constraint("Horizontal", 15, 3, 16, 3),
    Sketcher.Constraint("Horizontal", 23, 3, 24, 3),
    Sketcher.Constraint("Horizontal", 27, 3, 0, 1),
    Sketcher.Constraint("Horizontal", 0, 1, 2, 1),
    Sketcher.Constraint("Horizontal", 31, 3, 4, 1),
    Sketcher.Constraint("Horizontal", 4, 1, 6, 1),
    Sketcher.Constraint("Horizontal", 2, 1, 8, 1),
    Sketcher.Constraint("Horizontal", 8, 1, 10, 1),
    Sketcher.Constraint("Horizontal", 6, 1, 12, 1),
    Sketcher.Constraint("Horizontal", 12, 1, 14, 1),
    Sketcher.Constraint("Horizontal", 14, 1, 16, 1),
    Sketcher.Constraint("Horizontal", 16, 1, 18, 1),
    Sketcher.Constraint("Horizontal", 10, 1, 20, 1),
    Sketcher.Constraint("Horizontal", 20, 1, 22, 1),
    Sketcher.Constraint("Horizontal", 22, 1, 24, 1),
    Sketcher.Constraint("Horizontal", 24, 1, 26, 1),
    Sketcher.Constraint("Horizontal", 18, 1, 28, 1),
    Sketcher.Constraint("Horizontal", 28, 1, 30, 1),
    Sketcher.Constraint("Vertical", 7, 3, 1, 1),
    Sketcher.Constraint("Vertical", 1, 1, 3, 1),
    Sketcher.Constraint("Vertical", 3, 1, 5, 1),
    Sketcher.Constraint("Vertical", 5, 1, 7, 1),
    Sketcher.Constraint("Vertical", 15, 3, 9, 1),
    Sketcher.Constraint("Vertical", 9, 1, 11, 1),
    Sketcher.Constraint("Vertical", 11, 1, 13, 1),
    Sketcher.Constraint("Vertical", 13, 1, 15, 1),
    Sketcher.Constraint("Vertical", 23, 3, 17, 1),
    Sketcher.Constraint("Vertical", 17, 1, 19, 1),
    Sketcher.Constraint("Vertical", 19, 1, 21, 1),
    Sketcher.Constraint("Vertical", 21, 1, 23, 1),
    Sketcher.Constraint("Vertical", 31, 3, 25, 1),
    Sketcher.Constraint("Vertical", 25, 1, 27, 1),
    Sketcher.Constraint("Vertical", 27, 1, 29, 1),
    Sketcher.Constraint("Vertical", 29, 1, 31, 1),
    Sketcher.Constraint("Radius", 0, 5.0),
    Sketcher.Constraint("Radius", 2, 4.0),
    Sketcher.Constraint("DistanceX", 0, 3, -1, 1, 147.0),
    Sketcher.Constraint("DistanceY", -1, 1, 0, 3, 10.0),
    Sketcher.Constraint("DistanceX", 8, 3, -1, 1, 48.0),
    Sketcher.Constraint("DistanceX", -1, 1, 16, 3, 50.0),
    Sketcher.Constraint("DistanceX", -1, 1, 24, 3, 150.0),
])
pad2 = body.newObject("PartDesign::Pad", "Pad001")
pad2.Profile = sketch2
pad2.Length = 46
doc.recompute()

fillet = body.newObject("PartDesign::Fillet", "Fillet")
fillet.Base = (pad2, edges_at(pad2, [
    (-149.828, -12.828, 0),
    (-149.828, 12.828, 0),
    (-50.828, -12.828, 0),
    (-50.828, 12.828, 0),
    (47.172, -12.828, 0),
    (47.172, 12.828, 0),
    (147.172, -12.828, 0),
    (147.172, 12.828, 0),
]))
fillet.Radius = 2

doc.recompute()
